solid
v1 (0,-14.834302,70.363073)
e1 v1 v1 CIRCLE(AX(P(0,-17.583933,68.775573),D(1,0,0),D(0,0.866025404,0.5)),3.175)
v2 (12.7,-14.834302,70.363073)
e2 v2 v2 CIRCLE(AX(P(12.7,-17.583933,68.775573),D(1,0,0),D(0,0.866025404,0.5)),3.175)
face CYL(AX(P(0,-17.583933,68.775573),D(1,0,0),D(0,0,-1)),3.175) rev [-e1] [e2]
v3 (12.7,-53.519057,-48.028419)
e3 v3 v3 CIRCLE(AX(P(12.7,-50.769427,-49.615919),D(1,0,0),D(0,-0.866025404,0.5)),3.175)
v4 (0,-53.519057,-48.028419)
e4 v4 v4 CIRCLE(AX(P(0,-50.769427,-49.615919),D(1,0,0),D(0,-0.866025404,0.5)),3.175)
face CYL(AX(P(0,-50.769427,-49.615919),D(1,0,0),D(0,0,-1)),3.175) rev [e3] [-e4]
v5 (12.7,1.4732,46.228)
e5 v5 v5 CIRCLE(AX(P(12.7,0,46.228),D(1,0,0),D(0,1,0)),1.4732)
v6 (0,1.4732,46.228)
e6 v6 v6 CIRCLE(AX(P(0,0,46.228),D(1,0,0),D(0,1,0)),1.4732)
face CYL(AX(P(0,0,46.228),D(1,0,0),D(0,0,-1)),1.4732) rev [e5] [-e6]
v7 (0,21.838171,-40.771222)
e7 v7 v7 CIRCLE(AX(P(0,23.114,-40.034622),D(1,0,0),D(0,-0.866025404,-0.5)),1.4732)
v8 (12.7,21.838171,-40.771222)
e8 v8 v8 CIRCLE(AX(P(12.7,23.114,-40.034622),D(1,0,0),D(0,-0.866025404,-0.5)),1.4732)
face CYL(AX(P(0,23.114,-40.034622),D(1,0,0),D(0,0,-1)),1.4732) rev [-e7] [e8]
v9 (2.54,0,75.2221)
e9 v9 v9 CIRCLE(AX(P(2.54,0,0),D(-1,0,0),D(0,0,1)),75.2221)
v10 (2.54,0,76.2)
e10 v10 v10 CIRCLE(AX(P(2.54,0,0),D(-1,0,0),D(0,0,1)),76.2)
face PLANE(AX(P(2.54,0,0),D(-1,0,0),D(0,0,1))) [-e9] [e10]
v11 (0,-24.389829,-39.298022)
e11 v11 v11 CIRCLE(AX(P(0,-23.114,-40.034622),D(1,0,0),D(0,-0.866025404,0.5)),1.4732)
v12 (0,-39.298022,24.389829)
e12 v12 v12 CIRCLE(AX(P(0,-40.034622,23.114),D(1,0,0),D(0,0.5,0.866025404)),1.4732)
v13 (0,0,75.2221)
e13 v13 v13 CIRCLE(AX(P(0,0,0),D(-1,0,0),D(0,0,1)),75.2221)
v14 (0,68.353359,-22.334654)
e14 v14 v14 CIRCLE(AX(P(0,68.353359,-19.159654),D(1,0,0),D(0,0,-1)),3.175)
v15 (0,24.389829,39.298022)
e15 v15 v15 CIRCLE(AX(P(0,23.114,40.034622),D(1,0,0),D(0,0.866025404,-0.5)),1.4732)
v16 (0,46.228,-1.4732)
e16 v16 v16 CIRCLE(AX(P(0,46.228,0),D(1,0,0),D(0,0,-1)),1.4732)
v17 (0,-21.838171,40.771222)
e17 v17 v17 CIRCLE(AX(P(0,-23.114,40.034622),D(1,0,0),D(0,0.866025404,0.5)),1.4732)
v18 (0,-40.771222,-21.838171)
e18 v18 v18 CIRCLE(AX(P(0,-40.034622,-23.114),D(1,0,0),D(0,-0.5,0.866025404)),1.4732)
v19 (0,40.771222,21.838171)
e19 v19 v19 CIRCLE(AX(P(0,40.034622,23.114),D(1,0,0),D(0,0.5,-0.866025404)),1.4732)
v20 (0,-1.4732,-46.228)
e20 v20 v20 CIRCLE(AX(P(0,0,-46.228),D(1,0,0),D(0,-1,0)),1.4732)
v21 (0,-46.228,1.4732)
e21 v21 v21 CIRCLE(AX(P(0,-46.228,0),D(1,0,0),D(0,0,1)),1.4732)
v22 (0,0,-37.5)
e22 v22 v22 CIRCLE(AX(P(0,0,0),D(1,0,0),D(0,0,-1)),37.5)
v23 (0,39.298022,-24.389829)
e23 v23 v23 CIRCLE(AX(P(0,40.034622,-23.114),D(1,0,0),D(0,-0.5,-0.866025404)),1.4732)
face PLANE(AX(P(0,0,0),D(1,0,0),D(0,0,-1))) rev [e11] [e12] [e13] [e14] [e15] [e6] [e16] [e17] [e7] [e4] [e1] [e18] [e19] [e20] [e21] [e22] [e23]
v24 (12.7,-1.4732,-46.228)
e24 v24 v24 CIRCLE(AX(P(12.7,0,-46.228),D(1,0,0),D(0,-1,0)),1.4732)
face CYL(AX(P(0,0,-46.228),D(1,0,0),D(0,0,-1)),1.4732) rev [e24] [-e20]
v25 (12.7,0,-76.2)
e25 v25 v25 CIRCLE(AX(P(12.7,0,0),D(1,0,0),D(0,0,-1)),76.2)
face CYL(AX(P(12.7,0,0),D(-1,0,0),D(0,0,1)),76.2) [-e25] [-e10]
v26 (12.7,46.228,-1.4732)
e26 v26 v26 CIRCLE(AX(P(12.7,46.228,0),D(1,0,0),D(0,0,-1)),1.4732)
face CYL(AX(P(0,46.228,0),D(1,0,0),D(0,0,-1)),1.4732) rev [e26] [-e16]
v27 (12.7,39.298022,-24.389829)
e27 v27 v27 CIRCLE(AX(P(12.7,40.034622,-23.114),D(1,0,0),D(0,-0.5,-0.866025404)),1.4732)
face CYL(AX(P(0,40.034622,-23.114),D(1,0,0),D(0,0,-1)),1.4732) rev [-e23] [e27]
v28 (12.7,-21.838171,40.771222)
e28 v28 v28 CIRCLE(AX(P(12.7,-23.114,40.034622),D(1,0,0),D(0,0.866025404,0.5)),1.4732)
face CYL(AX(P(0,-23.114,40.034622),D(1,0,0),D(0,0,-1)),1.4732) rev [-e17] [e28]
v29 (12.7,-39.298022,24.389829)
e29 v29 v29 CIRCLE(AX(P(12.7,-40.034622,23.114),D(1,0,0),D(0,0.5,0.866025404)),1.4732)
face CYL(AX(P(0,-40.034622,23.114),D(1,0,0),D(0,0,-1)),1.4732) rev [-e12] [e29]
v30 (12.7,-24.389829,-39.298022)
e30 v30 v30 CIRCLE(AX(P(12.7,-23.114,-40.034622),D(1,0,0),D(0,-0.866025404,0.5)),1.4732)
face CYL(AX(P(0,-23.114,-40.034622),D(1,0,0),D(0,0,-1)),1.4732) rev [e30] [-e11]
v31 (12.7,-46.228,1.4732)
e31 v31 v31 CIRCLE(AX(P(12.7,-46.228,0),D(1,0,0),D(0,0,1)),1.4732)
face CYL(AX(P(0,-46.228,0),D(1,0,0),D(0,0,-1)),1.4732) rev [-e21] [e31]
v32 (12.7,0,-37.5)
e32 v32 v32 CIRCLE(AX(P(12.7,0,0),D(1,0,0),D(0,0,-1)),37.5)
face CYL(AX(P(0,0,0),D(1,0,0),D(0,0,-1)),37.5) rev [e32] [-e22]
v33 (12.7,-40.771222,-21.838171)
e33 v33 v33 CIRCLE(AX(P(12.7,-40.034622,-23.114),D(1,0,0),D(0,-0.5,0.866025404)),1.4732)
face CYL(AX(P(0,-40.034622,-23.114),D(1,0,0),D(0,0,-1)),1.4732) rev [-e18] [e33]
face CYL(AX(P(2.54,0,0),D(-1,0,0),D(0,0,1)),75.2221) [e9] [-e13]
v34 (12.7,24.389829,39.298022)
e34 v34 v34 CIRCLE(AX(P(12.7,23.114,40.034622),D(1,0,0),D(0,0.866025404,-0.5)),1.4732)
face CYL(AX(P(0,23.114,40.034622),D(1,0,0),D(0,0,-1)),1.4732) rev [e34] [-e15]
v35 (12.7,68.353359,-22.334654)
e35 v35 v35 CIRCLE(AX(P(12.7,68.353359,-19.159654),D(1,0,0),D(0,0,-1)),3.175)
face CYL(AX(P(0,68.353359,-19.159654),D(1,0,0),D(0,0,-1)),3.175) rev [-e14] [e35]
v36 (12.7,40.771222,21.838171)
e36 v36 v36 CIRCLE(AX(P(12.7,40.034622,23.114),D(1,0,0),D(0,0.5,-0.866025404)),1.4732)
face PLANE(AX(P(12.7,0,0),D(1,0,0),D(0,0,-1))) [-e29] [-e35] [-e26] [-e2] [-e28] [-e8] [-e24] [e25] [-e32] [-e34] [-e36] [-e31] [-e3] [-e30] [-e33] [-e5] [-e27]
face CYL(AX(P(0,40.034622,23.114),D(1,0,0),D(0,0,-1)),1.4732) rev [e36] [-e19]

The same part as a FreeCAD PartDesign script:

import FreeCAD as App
import Part
import Sketcher
from FreeCAD import Vector
Q = App.Units.Quantity

doc = App.newDocument("Part")
params = doc.addObject("Spreadsheet::Sheet", "Params")
for row, (alias, value) in enumerate([
    ("sketch1_diameter", "6 in"),
    ("pad1_length", "0.5 in"),
    ("sketch3_diameter", "0.116 in"),
    ("sketch4_diameter", "0.25 in"),
    ("sketch5_diameter", "5.923 in"),
    ("pocket4_length", "0.1 in"),
], start=1):
    params.set(f"A{row}", alias)
    params.set(f"B{row}", "=" + value)
    params.setAlias(f"B{row}", alias)

body = doc.addObject("PartDesign::Body", "Body")

sketch1 = body.newObject("Sketcher::SketchObject", "Sketch")
sketch1.AttachmentSupport = (doc.getObject("YZ_Plane"), [""])
sketch1.MapMode = "FlatFace"
sketch1.addGeometry(Part.Circle(Vector(0, 0, 0), Vector(0, 0, 1), 76.2), False)
sketch1.addConstraint([
    Sketcher.Constraint("Coincident", 0, 3, -1, 1),
    Sketcher.Constraint("Diameter", 0, Q("6 in")),
])
sketch1.setExpression("Constraints[1]", "Params.sketch1_diameter")
pad1 = body.newObject("PartDesign::Pad", "Pad")
pad1.Profile = sketch1
pad1.setExpression("Length", "Params.pad1_length")

sketch2 = body.newObject("Sketcher::SketchObject", "Sketch001")
sketch2.AttachmentSupport = (doc.getObject("YZ_Plane"), [""])
sketch2.MapMode = "FlatFace"
sketch2.AttachmentOffset = App.Placement(Vector(0, 0, 0.5 * 25.4), App.Rotation())
sketch2.addGeometry(Part.Circle(Vector(0, 0, 0), Vector(0, 0, 1), 37.5), False)
sketch2.addConstraint([
    Sketcher.Constraint("Coincident", 0, 3, -1, 1),
    Sketcher.Constraint("Diameter", 0, 75.0),
])
pocket1 = body.newObject("PartDesign::Pocket", "Pocket")
pocket1.Profile = sketch2
pocket1.Type = "ThroughAll"

sketch3 = body.newObject("Sketcher::SketchObject", "Sketch002")
sketch3.AttachmentSupport = (doc.getObject("YZ_Plane"), [""])
sketch3.MapMode = "FlatFace"
sketch3.AttachmentOffset = App.Placement(Vector(0, 0, 0.5 * 25.4), App.Rotation())
sketch3.addGeometry(Part.Circle(Vector(46.228, 0, 0), Vector(0, 0, 1), 1.4732), False)
sketch3.addConstraint([
    Sketcher.Constraint("PointOnObject", 0, 3, -1),
    Sketcher.Constraint("Diameter", 0, Q("0.116 in")),
    Sketcher.Constraint("DistanceX", -1, 1, 0, 3, Q("1.82 in")),
])
sketch3.setExpression("Constraints[1]", "Params.sketch3_diameter")
pocket2 = body.newObject("PartDesign::Pocket", "Pocket001")
pocket2.Profile = sketch3
pocket2.Type = "ThroughAll"
doc.recompute()

polarpattern = body.newObject("PartDesign::PolarPattern", "PolarPattern")
polarpattern.Originals = [pocket2]
polarpattern.Axis = (doc.getObject("X_Axis"), [""])
polarpattern.Angle = 360
polarpattern.Occurrences = 12
body.Tip = polarpattern

sketch4 = body.newObject("Sketcher::SketchObject", "Sketch003")
sketch4.AttachmentSupport = (doc.getObject("YZ_Plane"), [""])
sketch4.MapMode = "FlatFace"
sketch4.AttachmentOffset = App.Placement(Vector(0, 0, 0.5 * 25.4), App.Rotation())
sketch4.addGeometry(Part.Circle(Vector(68.353359, -19.159654, 0), Vector(0, 0, 1), 3.175), False)
sketch4.addConstraint([
    Sketcher.Constraint("Diameter", 0, Q("0.25 in")),
    Sketcher.Constraint("DistanceX", -1, 1, 0, 3, 68.353359),
    Sketcher.Constraint("DistanceY", 0, 3, -1, 1, 19.159654),
])
sketch4.setExpression("Constraints[0]", "Params.sketch4_diameter")
pocket3 = body.newObject("PartDesign::Pocket", "Pocket002")
pocket3.Profile = sketch4
pocket3.Type = "ThroughAll"
doc.recompute()

polarpattern2 = body.newObject("PartDesign::PolarPattern", "PolarPattern001")
polarpattern2.Originals = [pocket3]
polarpattern2.Axis = (doc.getObject("X_Axis"), [""])
polarpattern2.Angle = 360
polarpattern2.Occurrences = 3
body.Tip = polarpattern2

sketch5 = body.newObject("Sketcher::SketchObject", "Sketch004")
sketch5.AttachmentSupport = (doc.getObject("YZ_Plane"), [""])
sketch5.MapMode = "FlatFace"
sketch5.addGeometry([
    Part.LineSegment(Vector(98.79, -98.79, 0), Vector(-98.79, -98.79, 0)),
    Part.LineSegment(Vector(-98.79, -98.79, 0), Vector(-98.79, 98.79, 0)),
    Part.LineSegment(Vector(-98.79, 98.79, 0), Vector(98.79, 98.79, 0)),
    Part.LineSegment(Vector(98.79, 98.79, 0), Vector(98.79, -98.79, 0)),
    Part.Circle(Vector(0, 0, 0), Vector(0, 0, 1), 75.2221),
], False)
sketch5.addConstraint([
    Sketcher.Constraint("Coincident", 0, 2, 1, 1),
    Sketcher.Constraint("Coincident", 1, 2, 2, 1),
    Sketcher.Constraint("Coincident", 2, 2, 3, 1),
    Sketcher.Constraint("Coincident", 3, 2, 0, 1),
    Sketcher.Constraint("Horizontal", 0),
    Sketcher.Constraint("Vertical", 1),
    Sketcher.Constraint("Horizontal", 2),
    Sketcher.Constraint("Vertical", 3),
    Sketcher.Constraint("Coincident", 4, 3, -1, 1),
    Sketcher.Constraint("Symmetric", 0, 2, 2, 2, -1, 1),
    Sketcher.Constraint("Equal", 2, 1),
    Sketcher.Constraint("Diameter", 4, Q("5.923 in")),
    Sketcher.Constraint("DistanceX", 0, 2, 0, 1, 197.58),
])
sketch5.setExpression("Constraints[11]", "Params.sketch5_diameter")
pocket4 = body.newObject("PartDesign::Pocket", "Pocket003")
pocket4.Profile = sketch5
pocket4.setExpression("Length", "Params.pocket4_length")
pocket4.Reversed = True

doc.recompute()
